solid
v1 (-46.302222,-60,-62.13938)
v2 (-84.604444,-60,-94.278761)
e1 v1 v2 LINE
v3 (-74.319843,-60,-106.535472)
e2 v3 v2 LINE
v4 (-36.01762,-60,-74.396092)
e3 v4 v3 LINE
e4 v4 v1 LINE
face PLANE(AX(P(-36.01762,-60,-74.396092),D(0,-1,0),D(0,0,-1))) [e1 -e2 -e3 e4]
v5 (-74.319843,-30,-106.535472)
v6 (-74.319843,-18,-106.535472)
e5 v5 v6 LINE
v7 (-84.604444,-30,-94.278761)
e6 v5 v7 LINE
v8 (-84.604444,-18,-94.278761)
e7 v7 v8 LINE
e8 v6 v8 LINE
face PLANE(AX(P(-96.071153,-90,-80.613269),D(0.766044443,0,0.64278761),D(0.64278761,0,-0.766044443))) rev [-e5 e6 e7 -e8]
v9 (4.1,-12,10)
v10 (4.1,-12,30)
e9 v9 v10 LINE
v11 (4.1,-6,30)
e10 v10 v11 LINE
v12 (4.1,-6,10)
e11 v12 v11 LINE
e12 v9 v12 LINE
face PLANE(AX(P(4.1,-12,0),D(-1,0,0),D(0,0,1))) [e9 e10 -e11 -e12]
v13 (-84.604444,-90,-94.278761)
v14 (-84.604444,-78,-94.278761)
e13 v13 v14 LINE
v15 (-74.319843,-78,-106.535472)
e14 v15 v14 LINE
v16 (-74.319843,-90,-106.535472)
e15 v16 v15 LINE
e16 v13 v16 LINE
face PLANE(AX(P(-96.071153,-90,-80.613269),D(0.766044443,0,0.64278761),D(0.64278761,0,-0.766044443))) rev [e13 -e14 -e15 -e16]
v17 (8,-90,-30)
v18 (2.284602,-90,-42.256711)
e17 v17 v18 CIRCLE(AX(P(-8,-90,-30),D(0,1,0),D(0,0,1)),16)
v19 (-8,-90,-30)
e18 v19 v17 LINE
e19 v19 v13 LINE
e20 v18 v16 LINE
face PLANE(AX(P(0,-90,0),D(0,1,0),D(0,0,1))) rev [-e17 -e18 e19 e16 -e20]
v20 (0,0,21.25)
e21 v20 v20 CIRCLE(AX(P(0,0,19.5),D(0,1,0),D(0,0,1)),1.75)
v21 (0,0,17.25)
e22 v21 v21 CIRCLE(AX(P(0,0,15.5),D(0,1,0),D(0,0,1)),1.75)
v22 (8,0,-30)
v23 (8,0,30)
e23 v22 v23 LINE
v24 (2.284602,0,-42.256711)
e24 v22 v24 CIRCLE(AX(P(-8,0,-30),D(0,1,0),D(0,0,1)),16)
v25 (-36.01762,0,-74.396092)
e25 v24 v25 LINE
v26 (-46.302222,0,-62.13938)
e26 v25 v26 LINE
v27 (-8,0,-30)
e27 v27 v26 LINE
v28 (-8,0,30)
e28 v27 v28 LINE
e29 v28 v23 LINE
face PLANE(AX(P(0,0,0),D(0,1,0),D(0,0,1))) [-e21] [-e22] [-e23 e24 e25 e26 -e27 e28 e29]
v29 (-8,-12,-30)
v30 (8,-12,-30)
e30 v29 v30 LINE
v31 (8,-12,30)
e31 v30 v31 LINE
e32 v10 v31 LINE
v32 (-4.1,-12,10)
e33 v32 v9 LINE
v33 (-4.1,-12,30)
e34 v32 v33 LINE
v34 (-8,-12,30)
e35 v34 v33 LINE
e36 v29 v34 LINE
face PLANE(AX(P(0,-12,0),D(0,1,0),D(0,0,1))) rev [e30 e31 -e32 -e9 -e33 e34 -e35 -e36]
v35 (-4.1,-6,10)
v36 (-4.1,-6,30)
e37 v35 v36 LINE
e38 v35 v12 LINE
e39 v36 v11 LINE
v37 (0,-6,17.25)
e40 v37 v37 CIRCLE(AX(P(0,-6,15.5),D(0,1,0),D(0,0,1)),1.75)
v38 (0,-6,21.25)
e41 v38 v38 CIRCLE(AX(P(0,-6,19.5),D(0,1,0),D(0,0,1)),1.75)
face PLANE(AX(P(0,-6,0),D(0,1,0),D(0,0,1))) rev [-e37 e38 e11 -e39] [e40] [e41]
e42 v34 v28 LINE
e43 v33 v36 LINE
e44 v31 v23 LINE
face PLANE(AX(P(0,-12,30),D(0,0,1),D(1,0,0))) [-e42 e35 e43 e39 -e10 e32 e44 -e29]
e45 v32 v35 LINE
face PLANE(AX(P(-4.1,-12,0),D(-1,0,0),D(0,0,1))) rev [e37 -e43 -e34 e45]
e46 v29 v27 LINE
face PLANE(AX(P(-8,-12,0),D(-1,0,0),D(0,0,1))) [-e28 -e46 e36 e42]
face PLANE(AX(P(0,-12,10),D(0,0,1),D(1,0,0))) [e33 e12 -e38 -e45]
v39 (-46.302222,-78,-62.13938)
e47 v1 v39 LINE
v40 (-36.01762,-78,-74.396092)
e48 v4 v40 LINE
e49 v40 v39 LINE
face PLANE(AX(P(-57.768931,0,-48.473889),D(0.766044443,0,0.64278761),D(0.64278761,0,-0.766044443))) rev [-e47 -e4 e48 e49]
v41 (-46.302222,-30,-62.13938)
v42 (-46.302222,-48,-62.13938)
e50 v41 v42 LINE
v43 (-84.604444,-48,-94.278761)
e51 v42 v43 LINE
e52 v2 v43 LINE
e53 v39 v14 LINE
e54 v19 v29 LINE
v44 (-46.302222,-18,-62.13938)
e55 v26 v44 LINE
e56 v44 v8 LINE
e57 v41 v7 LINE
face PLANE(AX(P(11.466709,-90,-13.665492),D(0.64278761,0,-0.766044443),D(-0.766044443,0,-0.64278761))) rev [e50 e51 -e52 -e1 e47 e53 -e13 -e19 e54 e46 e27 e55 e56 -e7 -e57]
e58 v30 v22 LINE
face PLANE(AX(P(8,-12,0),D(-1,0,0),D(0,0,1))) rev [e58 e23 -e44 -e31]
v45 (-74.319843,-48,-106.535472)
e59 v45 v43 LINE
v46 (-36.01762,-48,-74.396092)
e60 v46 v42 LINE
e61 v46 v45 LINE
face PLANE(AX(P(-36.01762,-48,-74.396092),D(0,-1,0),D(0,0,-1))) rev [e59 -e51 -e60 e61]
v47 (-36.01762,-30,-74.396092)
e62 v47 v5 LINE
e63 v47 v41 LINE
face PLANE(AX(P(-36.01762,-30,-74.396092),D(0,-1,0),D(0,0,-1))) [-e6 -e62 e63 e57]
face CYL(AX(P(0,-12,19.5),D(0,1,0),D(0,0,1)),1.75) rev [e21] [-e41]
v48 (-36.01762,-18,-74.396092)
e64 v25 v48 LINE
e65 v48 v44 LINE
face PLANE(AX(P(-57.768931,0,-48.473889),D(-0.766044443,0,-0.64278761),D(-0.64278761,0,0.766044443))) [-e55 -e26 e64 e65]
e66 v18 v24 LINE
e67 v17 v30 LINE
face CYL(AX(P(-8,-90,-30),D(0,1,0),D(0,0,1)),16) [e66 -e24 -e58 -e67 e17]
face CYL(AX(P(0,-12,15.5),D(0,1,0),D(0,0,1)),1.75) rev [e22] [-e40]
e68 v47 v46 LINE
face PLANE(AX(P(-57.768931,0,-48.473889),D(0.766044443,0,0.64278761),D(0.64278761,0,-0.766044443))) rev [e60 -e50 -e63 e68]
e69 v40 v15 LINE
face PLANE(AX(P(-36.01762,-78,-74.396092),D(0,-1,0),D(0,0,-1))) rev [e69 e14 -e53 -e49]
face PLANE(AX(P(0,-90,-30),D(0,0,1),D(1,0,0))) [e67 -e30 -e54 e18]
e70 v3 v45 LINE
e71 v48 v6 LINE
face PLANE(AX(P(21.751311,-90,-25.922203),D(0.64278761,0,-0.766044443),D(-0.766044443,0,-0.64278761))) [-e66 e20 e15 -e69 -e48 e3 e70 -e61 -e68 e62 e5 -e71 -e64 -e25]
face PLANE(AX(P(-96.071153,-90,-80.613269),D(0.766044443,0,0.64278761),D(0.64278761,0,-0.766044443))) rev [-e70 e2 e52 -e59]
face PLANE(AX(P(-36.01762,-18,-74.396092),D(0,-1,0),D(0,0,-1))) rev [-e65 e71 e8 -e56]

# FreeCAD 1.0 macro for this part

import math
import FreeCAD as App
import Part
import Sketcher
from FreeCAD import Vector
Q = App.Units.Quantity

doc = App.newDocument("Part")
body = doc.addObject("PartDesign::Body", "Body")

# Sketch on XZ plane
sketch1 = doc.addObject("Sketcher::SketchObject", "Sketch")
body.addObject(sketch1)
sketch1.AttachmentSupport = (doc.XZ_Plane, [""])
sketch1.MapMode = "FlatFace"
sketch1.addGeometry([
    Part.LineSegment(Vector(-8, -30, 0), Vector(-8, 30, 0)),
    Part.LineSegment(Vector(-8, 30, 0), Vector(8, 30, 0)),
    Part.LineSegment(Vector(8, 30, 0), Vector(8, -30, 0)),
    Part.LineSegment(Vector(8, -30, 0), Vector(-8, -30, 0)),
], False)
sketch1.addConstraint([
    Sketcher.Constraint("Coincident", 0, 2, 1, 1),
    Sketcher.Constraint("Coincident", 1, 2, 2, 1),
    Sketcher.Constraint("Coincident", 2, 2, 3, 1),
    Sketcher.Constraint("Coincident", 3, 2, 0, 1),
    Sketcher.Constraint("Vertical", 0),
    Sketcher.Constraint("Horizontal", 1),
    Sketcher.Constraint("Vertical", 2),
    Sketcher.Constraint("Horizontal", 3),
    Sketcher.Constraint("Symmetric", 0, 2, 2, 2, -1, 1),
    Sketcher.Constraint("DistanceX", 1, 1, 1, 2, Q("16 mm")),
    Sketcher.Constraint("DistanceY", 0, 1, 0, 2, Q("60 mm")),
])
pad1 = doc.addObject("PartDesign::Pad", "Pad")
body.addObject(pad1)
pad1.Profile = sketch1
pad1.Length = 12

# Sketch on XZ plane
sketch2 = doc.addObject("Sketcher::SketchObject", "Sketch001")
body.addObject(sketch2)
sketch2.AttachmentSupport = (doc.XZ_Plane, [""])
sketch2.MapMode = "FlatFace"
sketch2.addGeometry([
    Part.LineSegment(Vector(-74, -107, 0), Vector(-85, -94, 0)),  # 0
    Part.LineSegment(Vector(-85, -94, 0), Vector(-8, -30, 0)),  # 1
    Part.LineSegment(Vector(-8, -30, 0), Vector(8, -30, 0)),  # 2
    Part.ArcOfCircle(Part.Circle(Vector(-8, -30, 0), Vector(0, 0, 1), 16), math.radians(-50), math.radians(0)),  # 3
    Part.LineSegment(Vector(2, -42, 0), Vector(-74, -107, 0)),  # 4
], False)
sketch2.addConstraint([
    Sketcher.Constraint("Coincident", 0, 2, 1, 1),
    Sketcher.Constraint("Coincident", 1, 2, 2, 1),
    Sketcher.Constraint("Coincident", 2, 2, 3, 2),
    Sketcher.Constraint("Tangent", 3, 1, 4, 1),
    Sketcher.Constraint("Coincident", 4, 2, 0, 1),
    Sketcher.Constraint("Horizontal", 2),
    Sketcher.Constraint("Coincident", 1, 2, 3, 3),
    Sketcher.Constraint("Perpendicular", 0, 1),
    Sketcher.Constraint("Parallel", 1, 4),
    Sketcher.Constraint("Radius", 3, Q("16 mm")),
    Sketcher.Constraint("Angle", 0, Q("130 deg")),
    Sketcher.Constraint("Distance", 1, Q("100 mm")),
    Sketcher.Constraint("DistanceX", 3, 3, -1, 1, Q("8 mm")),
    Sketcher.Constraint("DistanceY", 3, 3, -1, 1, Q("30 mm")),
])
pad2 = doc.addObject("PartDesign::Pad", "Pad001")
body.addObject(pad2)
pad2.Profile = sketch2
pad2.Length = 90

# Sketch on an angled plane
sketch3 = doc.addObject("Sketcher::SketchObject", "Sketch002")
body.addObject(sketch3)
sketch3.Placement = App.Placement(Vector(-96.071153, 0, -80.613269), App.Rotation(Vector(-0.64278761, 0, 0.766044443), Vector(0, 1, 0), Vector(-0.766044443, 0, -0.64278761), "ZXY"))
sketch3.addGeometry([
    Part.LineSegment(Vector(-34, 0, 0), Vector(-34, -18, 0)),  # 0
    Part.LineSegment(Vector(-34, -18, 0), Vector(-18, -18, 0)),  # 1
    Part.LineSegment(Vector(-18, -18, 0), Vector(-18, 0, 0)),  # 2
    Part.LineSegment(Vector(-18, 0, 0), Vector(-34, 0, 0)),  # 3
    Part.LineSegment(Vector(-34, -30, 0), Vector(-34, -48, 0)),  # 4
    Part.LineSegment(Vector(-34, -48, 0), Vector(-18, -48, 0)),  # 5
    Part.LineSegment(Vector(-18, -48, 0), Vector(-18, -30, 0)),  # 6
    Part.LineSegment(Vector(-18, -30, 0), Vector(-34, -30, 0)),  # 7
    Part.LineSegment(Vector(-34, -60, 0), Vector(-34, -78, 0)),  # 8
    Part.LineSegment(Vector(-34, -78, 0), Vector(-18, -78, 0)),  # 9
    Part.LineSegment(Vector(-18, -78, 0), Vector(-18, -60, 0)),  # 10
    Part.LineSegment(Vector(-18, -60, 0), Vector(-34, -60, 0)),  # 11
], False)
sketch3.addConstraint([
    Sketcher.Constraint("Coincident", 0, 2, 1, 1),
    Sketcher.Constraint("Coincident", 1, 2, 2, 1),
    Sketcher.Constraint("Coincident", 2, 2, 3, 1),
    Sketcher.Constraint("Coincident", 3, 2, 0, 1),
    Sketcher.Constraint("Coincident", 4, 2, 5, 1),
    Sketcher.Constraint("Coincident", 5, 2, 6, 1),
    Sketcher.Constraint("Coincident", 6, 2, 7, 1),
    Sketcher.Constraint("Coincident", 7, 2, 4, 1),
    Sketcher.Constraint("Coincident", 8, 2, 9, 1),
    Sketcher.Constraint("Coincident", 9, 2, 10, 1),
    Sketcher.Constraint("Coincident", 10, 2, 11, 1),
    Sketcher.Constraint("Coincident", 11, 2, 8, 1),
    Sketcher.Constraint("Vertical", 0),
    Sketcher.Constraint("Horizontal", 1),
    Sketcher.Constraint("Vertical", 2),
    Sketcher.Constraint("Horizontal", 3),
    Sketcher.Constraint("Vertical", 4),
    Sketcher.Constraint("Horizontal", 5),
    Sketcher.Constraint("Vertical", 6),
    Sketcher.Constraint("Horizontal", 7),
    Sketcher.Constraint("Vertical", 8),
    Sketcher.Constraint("Horizontal", 9),
    Sketcher.Constraint("Vertical", 10),
    Sketcher.Constraint("Horizontal", 11),
    Sketcher.Constraint("PointOnObject", 2, 2, -1),
    Sketcher.Constraint("Vertical", 3, 2, 4, 2),
    Sketcher.Constraint("Vertical", 2, 2, 5, 2),
    Sketcher.Constraint("Vertical", 7, 2, 8, 2),
    Sketcher.Constraint("Vertical", 6, 2, 9, 2),
    Sketcher.Constraint("Equal", 2, 4),
    Sketcher.Constraint("Equal", 6, 8),
    Sketcher.Constraint("DistanceX", 1, 1, 1, 2, Q("16 mm")),
    Sketcher.Constraint("DistanceY", 0, 2, 0, 1, Q("18 mm")),
    Sketcher.Constraint("DistanceY", 4, 2, -1, 1, Q("48 mm")),
    Sketcher.Constraint("DistanceY", 8, 2, -1, 1, Q("78 mm")),
    Sketcher.Constraint("DistanceX", 0, 2, -1, 1, Q("33.839032 mm")),
])
pocket1 = doc.addObject("PartDesign::Pocket", "Pocket")
body.addObject(pocket1)
pocket1.Profile = sketch3
pocket1.Length = 50

# Sketch on XZ plane
sketch4 = doc.addObject("Sketcher::SketchObject", "Sketch003")
body.addObject(sketch4)
sketch4.AttachmentSupport = (doc.XZ_Plane, [""])
sketch4.MapMode = "FlatFace"
sketch4.AttachmentOffset = App.Placement(Vector(0, 0, 6), App.Rotation())
sketch4.addGeometry([
    Part.LineSegment(Vector(-4.1, 10, 0), Vector(-4.1, 30, 0)),  # 0
    Part.LineSegment(Vector(-4.1, 30, 0), Vector(4.1, 30, 0)),  # 1
    Part.LineSegment(Vector(4.1, 30, 0), Vector(4.1, 10, 0)),  # 2
    Part.LineSegment(Vector(4.1, 10, 0), Vector(-4.1, 10, 0)),  # 3
    Part.Circle(Vector(0, 19.5, 0), Vector(0, 0, 1), 1.8),  # 4
    Part.Circle(Vector(0, 15.5, 0), Vector(0, 0, 1), 1.8),  # 5
], False)
sketch4.addConstraint([
    Sketcher.Constraint("Coincident", 0, 2, 1, 1),
    Sketcher.Constraint("Coincident", 1, 2, 2, 1),
    Sketcher.Constraint("Coincident", 2, 2, 3, 1),
    Sketcher.Constraint("Coincident", 3, 2, 0, 1),
    Sketcher.Constraint("Vertical", 0),
    Sketcher.Constraint("Horizontal", 1),
    Sketcher.Constraint("Vertical", 2),
    Sketcher.Constraint("Horizontal", 3),
    Sketcher.Constraint("Equal", 4, 5),
    Sketcher.Constraint("PointOnObject", 4, 3, -2),
    Sketcher.Constraint("PointOnObject", 5, 3, -2),
    Sketcher.Constraint("Diameter", 4, Q("3.5 mm")),
    Sketcher.Constraint("DistanceY", 0, 1, 0, 2, Q("20 mm")),
    Sketcher.Constraint("DistanceX", 1, 1, 1, 2, Q("8.2 mm")),
    Sketcher.Constraint("DistanceY", -1, 1, 0, 2, Q("30 mm")),
    Sketcher.Constraint("DistanceY", 5, 3, 4, 3, Q("4 mm")),
    Sketcher.Constraint("DistanceY", -1, 1, 4, 3, Q("19.5 mm")),
    Sketcher.Constraint("DistanceX", 0, 2, -1, 1, Q("4.1 mm")),
])
pocket2 = doc.addObject("PartDesign::Pocket", "Pocket001")
body.addObject(pocket2)
pocket2.Profile = sketch4
pocket2.Length = 6
pocket2.Reversed = True

# Sketch on XZ plane
sketch5 = doc.addObject("Sketcher::SketchObject", "Sketch004")
body.addObject(sketch5)
sketch5.AttachmentSupport = (doc.XZ_Plane, [""])
sketch5.MapMode = "FlatFace"
sketch5.addGeometry([
    Part.Circle(Vector(0, 19.5, 0), Vector(0, 0, 1), 1.8),
    Part.Circle(Vector(0, 15.5, 0), Vector(0, 0, 1), 1.8),
], False)
sketch5.addConstraint([
    Sketcher.Constraint("Equal", 0, 1),
    Sketcher.Constraint("PointOnObject", 0, 3, -2),
    Sketcher.Constraint("PointOnObject", 1, 3, -2),
    Sketcher.Constraint("Diameter", 0, Q("3.5 mm")),
    Sketcher.Constraint("DistanceY", 1, 3, 0, 3, Q("4 mm")),
    Sketcher.Constraint("DistanceY", -1, 1, 0, 3, Q("19.5 mm")),
])
pocket3 = doc.addObject("PartDesign::Pocket", "Pocket002")
body.addObject(pocket3)
pocket3.Profile = sketch5
pocket3.Length = 12
pocket3.Reversed = True

doc.recompute()
